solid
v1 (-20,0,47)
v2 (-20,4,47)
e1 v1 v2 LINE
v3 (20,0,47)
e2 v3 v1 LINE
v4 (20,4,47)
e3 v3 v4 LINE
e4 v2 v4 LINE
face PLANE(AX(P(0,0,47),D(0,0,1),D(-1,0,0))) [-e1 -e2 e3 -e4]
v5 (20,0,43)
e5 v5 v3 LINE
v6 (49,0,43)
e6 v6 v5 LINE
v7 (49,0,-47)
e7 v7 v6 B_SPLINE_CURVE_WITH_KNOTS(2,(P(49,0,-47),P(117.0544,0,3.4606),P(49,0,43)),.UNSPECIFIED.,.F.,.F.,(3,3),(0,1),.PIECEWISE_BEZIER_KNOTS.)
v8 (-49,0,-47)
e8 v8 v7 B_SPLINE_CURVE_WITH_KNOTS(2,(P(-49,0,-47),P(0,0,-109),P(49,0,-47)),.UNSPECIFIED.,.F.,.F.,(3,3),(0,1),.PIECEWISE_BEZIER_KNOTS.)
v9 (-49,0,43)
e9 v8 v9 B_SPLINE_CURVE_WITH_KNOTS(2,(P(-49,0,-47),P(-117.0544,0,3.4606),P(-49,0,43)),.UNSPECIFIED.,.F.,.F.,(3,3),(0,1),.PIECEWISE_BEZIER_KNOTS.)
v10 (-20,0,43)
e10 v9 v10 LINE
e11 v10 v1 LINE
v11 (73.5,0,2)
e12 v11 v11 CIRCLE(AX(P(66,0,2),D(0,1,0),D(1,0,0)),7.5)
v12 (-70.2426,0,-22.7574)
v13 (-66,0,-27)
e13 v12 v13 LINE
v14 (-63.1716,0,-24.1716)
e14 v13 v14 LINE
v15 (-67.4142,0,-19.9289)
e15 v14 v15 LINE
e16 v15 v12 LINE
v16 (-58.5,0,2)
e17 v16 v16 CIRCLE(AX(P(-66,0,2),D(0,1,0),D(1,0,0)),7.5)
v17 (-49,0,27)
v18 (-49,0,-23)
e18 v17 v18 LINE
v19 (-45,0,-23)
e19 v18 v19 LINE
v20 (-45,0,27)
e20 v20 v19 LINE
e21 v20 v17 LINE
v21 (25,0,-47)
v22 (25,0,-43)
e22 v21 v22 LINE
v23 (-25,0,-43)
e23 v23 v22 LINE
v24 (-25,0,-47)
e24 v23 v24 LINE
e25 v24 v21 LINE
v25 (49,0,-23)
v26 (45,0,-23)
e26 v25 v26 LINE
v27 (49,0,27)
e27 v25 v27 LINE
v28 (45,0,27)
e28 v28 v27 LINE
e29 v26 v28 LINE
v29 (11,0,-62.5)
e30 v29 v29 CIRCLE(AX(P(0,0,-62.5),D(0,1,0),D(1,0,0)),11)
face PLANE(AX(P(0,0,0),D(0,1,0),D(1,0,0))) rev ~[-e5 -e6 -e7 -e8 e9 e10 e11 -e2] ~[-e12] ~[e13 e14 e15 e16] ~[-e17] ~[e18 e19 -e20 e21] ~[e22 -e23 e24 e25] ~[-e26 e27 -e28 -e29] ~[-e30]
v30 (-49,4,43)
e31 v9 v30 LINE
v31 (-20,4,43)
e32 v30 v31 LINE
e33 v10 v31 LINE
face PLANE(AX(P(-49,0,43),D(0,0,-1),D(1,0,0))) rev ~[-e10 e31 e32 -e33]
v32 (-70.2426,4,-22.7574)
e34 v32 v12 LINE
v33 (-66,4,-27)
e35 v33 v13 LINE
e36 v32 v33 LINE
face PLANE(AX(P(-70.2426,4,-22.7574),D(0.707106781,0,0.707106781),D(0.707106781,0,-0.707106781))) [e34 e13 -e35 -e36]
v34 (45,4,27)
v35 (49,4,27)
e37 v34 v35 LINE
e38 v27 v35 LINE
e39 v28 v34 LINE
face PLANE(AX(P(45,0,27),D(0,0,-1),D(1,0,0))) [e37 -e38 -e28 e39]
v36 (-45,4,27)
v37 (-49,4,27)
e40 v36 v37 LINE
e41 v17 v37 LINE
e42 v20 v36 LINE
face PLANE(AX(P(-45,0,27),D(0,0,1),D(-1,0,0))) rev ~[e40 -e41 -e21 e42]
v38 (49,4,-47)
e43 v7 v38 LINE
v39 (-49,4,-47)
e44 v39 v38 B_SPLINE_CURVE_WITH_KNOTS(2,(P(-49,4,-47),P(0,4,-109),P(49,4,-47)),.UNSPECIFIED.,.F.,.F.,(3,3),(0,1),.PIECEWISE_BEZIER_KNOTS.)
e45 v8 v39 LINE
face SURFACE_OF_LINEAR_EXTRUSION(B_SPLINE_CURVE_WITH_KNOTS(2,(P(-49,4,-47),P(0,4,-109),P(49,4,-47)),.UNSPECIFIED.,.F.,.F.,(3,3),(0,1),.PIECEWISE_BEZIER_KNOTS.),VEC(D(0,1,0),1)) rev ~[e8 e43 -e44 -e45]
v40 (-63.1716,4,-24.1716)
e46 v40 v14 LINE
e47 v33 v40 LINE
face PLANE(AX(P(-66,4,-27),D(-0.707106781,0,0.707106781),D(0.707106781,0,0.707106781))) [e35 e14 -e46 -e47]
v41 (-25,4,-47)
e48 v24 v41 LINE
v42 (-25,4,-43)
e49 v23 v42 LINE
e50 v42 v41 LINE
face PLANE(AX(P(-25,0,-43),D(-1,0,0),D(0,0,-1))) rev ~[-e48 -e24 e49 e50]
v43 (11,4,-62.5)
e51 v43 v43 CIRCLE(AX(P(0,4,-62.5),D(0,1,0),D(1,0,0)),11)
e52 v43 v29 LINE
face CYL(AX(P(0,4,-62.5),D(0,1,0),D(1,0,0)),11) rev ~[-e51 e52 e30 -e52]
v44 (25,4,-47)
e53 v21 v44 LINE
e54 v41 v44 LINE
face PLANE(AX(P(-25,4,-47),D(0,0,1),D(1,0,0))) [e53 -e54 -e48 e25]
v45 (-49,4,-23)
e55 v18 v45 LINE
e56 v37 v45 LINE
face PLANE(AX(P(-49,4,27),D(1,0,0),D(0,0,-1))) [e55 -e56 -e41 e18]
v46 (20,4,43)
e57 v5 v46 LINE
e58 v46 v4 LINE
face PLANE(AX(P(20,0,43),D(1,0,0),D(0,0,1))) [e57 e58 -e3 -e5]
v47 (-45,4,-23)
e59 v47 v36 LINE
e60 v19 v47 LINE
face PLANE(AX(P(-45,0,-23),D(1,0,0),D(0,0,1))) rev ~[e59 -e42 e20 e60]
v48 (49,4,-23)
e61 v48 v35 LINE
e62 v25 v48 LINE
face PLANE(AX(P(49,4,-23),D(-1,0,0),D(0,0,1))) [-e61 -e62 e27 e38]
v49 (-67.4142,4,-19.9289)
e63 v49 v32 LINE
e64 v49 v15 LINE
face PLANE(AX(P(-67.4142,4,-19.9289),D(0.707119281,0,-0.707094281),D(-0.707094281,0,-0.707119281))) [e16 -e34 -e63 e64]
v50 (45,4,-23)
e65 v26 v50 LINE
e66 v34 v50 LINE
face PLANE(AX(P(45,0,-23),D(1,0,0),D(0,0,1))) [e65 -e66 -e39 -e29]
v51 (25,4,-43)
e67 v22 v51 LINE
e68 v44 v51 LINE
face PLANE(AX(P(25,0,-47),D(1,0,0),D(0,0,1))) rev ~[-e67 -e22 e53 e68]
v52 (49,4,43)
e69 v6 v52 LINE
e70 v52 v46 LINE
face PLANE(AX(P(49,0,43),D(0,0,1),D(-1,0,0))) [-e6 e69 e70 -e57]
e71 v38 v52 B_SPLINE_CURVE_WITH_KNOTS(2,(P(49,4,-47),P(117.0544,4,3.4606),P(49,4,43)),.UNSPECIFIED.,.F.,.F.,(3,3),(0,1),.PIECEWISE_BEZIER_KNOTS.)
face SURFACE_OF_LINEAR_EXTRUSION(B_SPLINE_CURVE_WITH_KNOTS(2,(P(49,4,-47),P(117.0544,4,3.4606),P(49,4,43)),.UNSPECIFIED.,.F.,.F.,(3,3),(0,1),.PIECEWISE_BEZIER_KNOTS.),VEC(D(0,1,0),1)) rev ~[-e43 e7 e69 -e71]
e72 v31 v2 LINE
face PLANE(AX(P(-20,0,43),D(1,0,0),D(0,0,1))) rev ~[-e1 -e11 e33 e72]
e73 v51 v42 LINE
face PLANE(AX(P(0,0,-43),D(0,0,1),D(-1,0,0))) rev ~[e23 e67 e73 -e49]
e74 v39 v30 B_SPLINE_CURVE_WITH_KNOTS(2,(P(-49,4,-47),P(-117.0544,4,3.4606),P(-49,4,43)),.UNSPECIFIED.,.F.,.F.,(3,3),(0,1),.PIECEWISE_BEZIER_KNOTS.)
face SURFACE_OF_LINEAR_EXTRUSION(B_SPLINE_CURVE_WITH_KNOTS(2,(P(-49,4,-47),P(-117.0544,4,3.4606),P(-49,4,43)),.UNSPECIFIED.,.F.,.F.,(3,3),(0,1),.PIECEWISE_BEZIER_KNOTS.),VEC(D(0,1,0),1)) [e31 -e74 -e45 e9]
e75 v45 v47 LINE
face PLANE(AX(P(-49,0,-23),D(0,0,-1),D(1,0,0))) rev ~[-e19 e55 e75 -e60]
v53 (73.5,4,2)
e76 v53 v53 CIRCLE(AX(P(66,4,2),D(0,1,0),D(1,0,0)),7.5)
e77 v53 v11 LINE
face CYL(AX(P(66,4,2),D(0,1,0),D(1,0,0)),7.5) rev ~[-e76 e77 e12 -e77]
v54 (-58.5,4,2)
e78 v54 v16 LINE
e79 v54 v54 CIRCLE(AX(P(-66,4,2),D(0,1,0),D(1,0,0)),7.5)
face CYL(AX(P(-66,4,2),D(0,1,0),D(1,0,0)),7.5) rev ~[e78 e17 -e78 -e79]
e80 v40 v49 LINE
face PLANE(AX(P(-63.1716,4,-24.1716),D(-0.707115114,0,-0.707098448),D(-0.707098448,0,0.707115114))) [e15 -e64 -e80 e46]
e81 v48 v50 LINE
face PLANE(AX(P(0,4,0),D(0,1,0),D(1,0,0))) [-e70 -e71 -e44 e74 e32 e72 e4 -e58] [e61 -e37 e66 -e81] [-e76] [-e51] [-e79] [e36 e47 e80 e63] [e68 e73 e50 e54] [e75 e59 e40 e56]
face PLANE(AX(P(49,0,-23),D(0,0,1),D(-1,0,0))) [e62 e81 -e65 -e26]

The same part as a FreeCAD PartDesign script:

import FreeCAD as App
import Part
import Sketcher
from FreeCAD import Vector
Q = App.Units.Quantity


def add_polygon(sketch, points):
    """Adds a closed chain of lines whose ends are joined by coincident constraints."""
    first, n = sketch.GeometryCount, len(points)
    for a, b in zip(points, points[1:] + points[:1]):
        sketch.addGeometry(Part.LineSegment(App.Vector(*a, 0), App.Vector(*b, 0)), False)
    for i in range(n):
        sketch.addConstraint(Sketcher.Constraint("Coincident", first + i, 2, first + (i + 1) % n, 1))

doc = App.newDocument("Part")
body = doc.addObject("PartDesign::Body", "Body")

sketch1 = doc.addObject("Sketcher::SketchObject", "Sketch")
body.addObject(sketch1)
sketch1.AttachmentSupport = (doc.XZ_Plane, [""])
sketch1.MapMode = "FlatFace"
add_polygon(sketch1, [(-25, -47), (-49, -47), (-49, -23), (-45, -23), (-45, 27), (-49, 27), (-49, 43), (-20, 43), (-20, 47), (20, 47), (20, 43), (49, 43), (49, 27), (45, 27), (45, -23), (49, -23), (49, -47), (25, -47), (25, -43), (-25, -43)])
sketch1.addConstraint(Sketcher.Constraint("Horizontal", 0))
sketch1.addConstraint(Sketcher.Constraint("Vertical", 1))
sketch1.addConstraint(Sketcher.Constraint("Horizontal", 2))
sketch1.addConstraint(Sketcher.Constraint("Vertical", 3))
sketch1.addConstraint(Sketcher.Constraint("Horizontal", 4))
sketch1.addConstraint(Sketcher.Constraint("Vertical", 5))
sketch1.addConstraint(Sketcher.Constraint("Horizontal", 6))
sketch1.addConstraint(Sketcher.Constraint("Vertical", 7))
sketch1.addConstraint(Sketcher.Constraint("Horizontal", 8))
sketch1.addConstraint(Sketcher.Constraint("Vertical", 9))
sketch1.addConstraint(Sketcher.Constraint("Horizontal", 10))
sketch1.addConstraint(Sketcher.Constraint("Vertical", 11))
sketch1.addConstraint(Sketcher.Constraint("Horizontal", 12))
sketch1.addConstraint(Sketcher.Constraint("Vertical", 13))
sketch1.addConstraint(Sketcher.Constraint("Horizontal", 14))
sketch1.addConstraint(Sketcher.Constraint("Vertical", 15))
sketch1.addConstraint(Sketcher.Constraint("Horizontal", 16))
sketch1.addConstraint(Sketcher.Constraint("Vertical", 17))
sketch1.addConstraint(Sketcher.Constraint("Horizontal", 18))
sketch1.addConstraint(Sketcher.Constraint("Vertical", 19))
sketch1.addConstraint(Sketcher.Constraint("Symmetric", 6, 2, 9, 2, -2))
sketch1.addConstraint(Sketcher.Constraint("Symmetric", 4, 2, 11, 2, -2))
sketch1.addConstraint(Sketcher.Constraint("Symmetric", 2, 2, 13, 2, -2))
sketch1.addConstraint(Sketcher.Constraint("Symmetric", 0, 2, 15, 2, -2))
sketch1.addConstraint(Sketcher.Constraint("Vertical", 1, 2, 4, 2))
sketch1.addConstraint(Sketcher.Constraint("Equal", 0, 16))
sketch1.addConstraint(Sketcher.Constraint("Equal", 16, 1))
sketch1.addConstraint(Sketcher.Constraint("Equal", 18, 3))
sketch1.addConstraint(Sketcher.Constraint("Equal", 14, 7))
sketch1.addConstraint(Sketcher.Constraint("Equal", 9, 17))
sketch1.addConstraint(Sketcher.Constraint("DistanceX", 2, 1, 2, 2, Q("4 mm")))
sketch1.addConstraint(Sketcher.Constraint("DistanceX", 8, 1, 8, 2, Q("40 mm")))
sketch1.addConstraint(Sketcher.Constraint("DistanceX", 18, 2, 18, 1, Q("50 mm")))
sketch1.addConstraint(Sketcher.Constraint("DistanceX", 3, 2, 10, 2, Q("94 mm")))
sketch1.addConstraint(Sketcher.Constraint("DistanceY", 5, 1, 5, 2, Q("16 mm")))
sketch1.addConstraint(Sketcher.Constraint("DistanceY", 0, 2, -1, 1, Q("47 mm")))
pad1 = doc.addObject("PartDesign::Pad", "Pad")
body.addObject(pad1)
pad1.Profile = sketch1
pad1.Length = 4
pad1.Reversed = True

sketch2 = doc.addObject("Sketcher::SketchObject", "Sketch001")
body.addObject(sketch2)
sketch2.AttachmentSupport = (doc.XZ_Plane, [""])
sketch2.MapMode = "FlatFace"
sketch2.AttachmentOffset = App.Placement(Vector(0, 0, -4), App.Rotation())
sketch2.addGeometry(Part.BSplineCurve([Vector(-49, -47, 0), Vector(0, -109, 0), Vector(49, -47, 0)], [3, 3], [0, 1], False, 2, [1, 1, 1], False), False)
sketch2.addGeometry(Part.BSplineCurve([Vector(-49, -47, 0), Vector(-117.0544, 3.4606, 0), Vector(-49, 43, 0)], [3, 3], [0, 1], False, 2, [1, 1, 1], False), False)
sketch2.addGeometry(Part.LineSegment(Vector(-49, 43, 0), Vector(-20, 43, 0)), False)
sketch2.addGeometry(Part.LineSegment(Vector(-20, 43, 0), Vector(-20, 47, 0)), False)
sketch2.addGeometry(Part.LineSegment(Vector(-20, 47, 0), Vector(20, 47, 0)), False)
sketch2.addGeometry(Part.LineSegment(Vector(20, 47, 0), Vector(20, 43, 0)), False)
sketch2.addGeometry(Part.LineSegment(Vector(20, 43, 0), Vector(49, 43, 0)), False)
sketch2.addGeometry(Part.BSplineCurve([Vector(49, -47, 0), Vector(117.0544, 3.4606, 0), Vector(49, 43, 0)], [3, 3], [0, 1], False, 2, [1, 1, 1], False), False)
sketch2.addGeometry(Part.Circle(Vector(-66, 2, 0), Vector(0, 0, 1), 7.5), False)
add_polygon(sketch2, [(-70.2426, -22.7574), (-66, -27), (-63.1716, -24.1716), (-67.4142, -19.9289)])
add_polygon(sketch2, [(-49, 27), (-49, -23), (-45, -23), (-45, 27)])
add_polygon(sketch2, [(49, -23), (49, 27), (45, 27), (45, -23)])
sketch2.addGeometry(Part.Circle(Vector(66, 2, 0), Vector(0, 0, 1), 7.5), False)
add_polygon(sketch2, [(-25, -47), (25, -47), (25, -43), (-25, -43)])
sketch2.addGeometry(Part.Circle(Vector(0, -62.5, 0), Vector(0, 0, 1), 11), False)
sketch2.addConstraint(Sketcher.Constraint("Block", 0))
sketch2.addConstraint(Sketcher.Constraint("Block", 1))
sketch2.addConstraint(Sketcher.Constraint("Block", 7))
sketch2.addConstraint(Sketcher.Constraint("Coincident", 1, 2, 2, 1))
sketch2.addConstraint(Sketcher.Constraint("Coincident", 2, 2, 3, 1))
sketch2.addConstraint(Sketcher.Constraint("Coincident", 3, 2, 4, 1))
sketch2.addConstraint(Sketcher.Constraint("Coincident", 4, 2, 5, 1))
sketch2.addConstraint(Sketcher.Constraint("Coincident", 5, 2, 6, 1))
sketch2.addConstraint(Sketcher.Constraint("Coincident", 6, 2, 7, 2))
sketch2.addConstraint(Sketcher.Constraint("Horizontal", 2))
sketch2.addConstraint(Sketcher.Constraint("Vertical", 3))
sketch2.addConstraint(Sketcher.Constraint("Horizontal", 4))
sketch2.addConstraint(Sketcher.Constraint("Vertical", 5))
sketch2.addConstraint(Sketcher.Constraint("Horizontal", 6))
sketch2.addConstraint(Sketcher.Constraint("Vertical", 13))
sketch2.addConstraint(Sketcher.Constraint("Horizontal", 14))
sketch2.addConstraint(Sketcher.Constraint("Vertical", 15))
sketch2.addConstraint(Sketcher.Constraint("Horizontal", 16))
sketch2.addConstraint(Sketcher.Constraint("Vertical", 17))
sketch2.addConstraint(Sketcher.Constraint("Horizontal", 18))
sketch2.addConstraint(Sketcher.Constraint("Vertical", 19))
sketch2.addConstraint(Sketcher.Constraint("Horizontal", 20))
sketch2.addConstraint(Sketcher.Constraint("Horizontal", 22))
sketch2.addConstraint(Sketcher.Constraint("Vertical", 23))
sketch2.addConstraint(Sketcher.Constraint("Horizontal", 24))
sketch2.addConstraint(Sketcher.Constraint("Vertical", 25))
sketch2.addConstraint(Sketcher.Constraint("Equal", 8, 21))
sketch2.addConstraint(Sketcher.Constraint("Symmetric", 8, 3, 21, 3, -2))
sketch2.addConstraint(Sketcher.Constraint("Symmetric", 16, 2, 17, 2, -2))
sketch2.addConstraint(Sketcher.Constraint("Symmetric", 14, 2, 19, 2, -2))
sketch2.addConstraint(Sketcher.Constraint("PointOnObject", 26, 3, -2))
sketch2.addConstraint(Sketcher.Constraint("Perpendicular", 9, 10))
sketch2.addConstraint(Sketcher.Constraint("Perpendicular", 10, 11))
sketch2.addConstraint(Sketcher.Constraint("Perpendicular", 11, 12))
sketch2.addConstraint(Sketcher.Constraint("Vertical", 8, 3, 9, 2))
sketch2.addConstraint(Sketcher.Constraint("Vertical", 6, 2, 17, 2))
sketch2.addConstraint(Sketcher.Constraint("Equal", 2, 6))
sketch2.addConstraint(Sketcher.Constraint("Equal", 20, 3))
sketch2.addConstraint(Sketcher.Constraint("Equal", 24, 13))
sketch2.addConstraint(Sketcher.Constraint("Equal", 5, 23))
sketch2.addConstraint(Sketcher.Constraint("Diameter", 8, Q("15 mm")))
sketch2.addConstraint(Sketcher.Constraint("Diameter", 26, Q("22 mm")))
sketch2.addConstraint(Sketcher.Constraint("DistanceX", 14, 1, 14, 2, Q("4 mm")))
sketch2.addConstraint(Sketcher.Constraint("Angle", 9, Q("-45 deg")))
sketch2.addConstraint(Sketcher.Constraint("Distance", 9, Q("6 mm")))
sketch2.addConstraint(Sketcher.Constraint("Distance", 10, Q("4 mm")))
sketch2.addConstraint(Sketcher.Constraint("DistanceX", 2, 2, -1, 1, Q("20 mm")))
sketch2.addConstraint(Sketcher.Constraint("DistanceY", 8, 3, 3, 2, Q("45 mm")))
sketch2.addConstraint(Sketcher.Constraint("DistanceX", 6, 2, 21, 3, Q("17 mm")))
sketch2.addConstraint(Sketcher.Constraint("DistanceY", 9, 2, 13, 2, Q("4 mm")))
sketch2.addConstraint(Sketcher.Constraint("DistanceY", 15, 2, 3, 2, Q("20 mm")))
sketch2.addConstraint(Sketcher.Constraint("DistanceX", 22, 2, 19, 2, Q("20 mm")))
sketch2.addConstraint(Sketcher.Constraint("DistanceY", 23, 2, 19, 2, Q("20 mm")))
sketch2.addConstraint(Sketcher.Constraint("DistanceY", 23, 2, 21, 3, Q("45 mm")))
sketch2.addConstraint(Sketcher.Constraint("DistanceY", 26, 3, 22, 2, Q("15.5 mm")))
pad2 = doc.addObject("PartDesign::Pad", "Pad001")
body.addObject(pad2)
pad2.Profile = sketch2
pad2.Length = 4

doc.recompute()
